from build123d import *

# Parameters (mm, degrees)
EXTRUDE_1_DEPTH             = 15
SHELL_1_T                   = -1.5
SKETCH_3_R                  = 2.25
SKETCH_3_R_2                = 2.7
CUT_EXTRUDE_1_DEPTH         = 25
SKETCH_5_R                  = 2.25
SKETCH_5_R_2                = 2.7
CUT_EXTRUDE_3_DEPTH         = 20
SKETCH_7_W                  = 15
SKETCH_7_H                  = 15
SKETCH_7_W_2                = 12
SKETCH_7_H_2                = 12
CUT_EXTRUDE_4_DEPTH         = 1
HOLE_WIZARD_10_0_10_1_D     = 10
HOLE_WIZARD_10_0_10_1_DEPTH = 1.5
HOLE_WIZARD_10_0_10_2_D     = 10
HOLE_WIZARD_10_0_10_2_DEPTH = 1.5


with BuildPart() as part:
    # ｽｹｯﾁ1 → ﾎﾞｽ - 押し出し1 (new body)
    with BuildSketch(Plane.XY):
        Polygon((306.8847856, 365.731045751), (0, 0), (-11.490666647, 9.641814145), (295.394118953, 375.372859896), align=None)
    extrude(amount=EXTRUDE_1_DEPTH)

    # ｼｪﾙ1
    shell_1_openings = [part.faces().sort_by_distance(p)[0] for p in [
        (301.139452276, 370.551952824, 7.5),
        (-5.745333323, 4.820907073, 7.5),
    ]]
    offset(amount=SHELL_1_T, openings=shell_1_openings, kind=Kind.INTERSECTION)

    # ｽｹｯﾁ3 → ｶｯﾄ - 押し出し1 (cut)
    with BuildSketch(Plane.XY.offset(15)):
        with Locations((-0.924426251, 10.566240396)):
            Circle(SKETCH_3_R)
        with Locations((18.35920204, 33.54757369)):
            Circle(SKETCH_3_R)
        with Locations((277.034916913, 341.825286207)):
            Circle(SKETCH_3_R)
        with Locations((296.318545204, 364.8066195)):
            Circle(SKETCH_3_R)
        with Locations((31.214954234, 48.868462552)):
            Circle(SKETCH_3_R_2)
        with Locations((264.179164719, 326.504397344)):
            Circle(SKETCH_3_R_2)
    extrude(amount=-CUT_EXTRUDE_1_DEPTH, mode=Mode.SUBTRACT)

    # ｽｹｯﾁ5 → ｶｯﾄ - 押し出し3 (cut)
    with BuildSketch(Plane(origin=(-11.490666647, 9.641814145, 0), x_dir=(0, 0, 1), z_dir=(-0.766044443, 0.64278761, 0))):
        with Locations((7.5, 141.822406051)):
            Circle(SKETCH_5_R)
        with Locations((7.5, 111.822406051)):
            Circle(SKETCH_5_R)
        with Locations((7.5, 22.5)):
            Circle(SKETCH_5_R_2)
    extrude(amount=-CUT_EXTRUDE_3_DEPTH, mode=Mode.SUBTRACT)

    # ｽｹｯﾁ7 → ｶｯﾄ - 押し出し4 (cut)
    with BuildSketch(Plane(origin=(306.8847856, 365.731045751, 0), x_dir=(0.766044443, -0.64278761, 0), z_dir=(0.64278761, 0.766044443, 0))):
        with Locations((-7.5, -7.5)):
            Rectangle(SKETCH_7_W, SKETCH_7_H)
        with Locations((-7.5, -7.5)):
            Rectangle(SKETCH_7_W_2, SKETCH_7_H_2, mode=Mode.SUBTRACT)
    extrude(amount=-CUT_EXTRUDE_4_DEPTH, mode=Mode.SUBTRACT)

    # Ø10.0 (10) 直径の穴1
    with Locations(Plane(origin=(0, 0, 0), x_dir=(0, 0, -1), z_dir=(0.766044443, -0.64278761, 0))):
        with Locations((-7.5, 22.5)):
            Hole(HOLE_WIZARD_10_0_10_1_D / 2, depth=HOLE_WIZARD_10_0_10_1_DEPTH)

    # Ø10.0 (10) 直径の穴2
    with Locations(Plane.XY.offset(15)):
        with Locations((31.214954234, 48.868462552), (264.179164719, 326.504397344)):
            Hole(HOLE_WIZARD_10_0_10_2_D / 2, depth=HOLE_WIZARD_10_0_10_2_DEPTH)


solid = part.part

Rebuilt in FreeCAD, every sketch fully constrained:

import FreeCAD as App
import Part
import Sketcher
Q = App.Units.Quantity


def faces_at(feature, points):
    """Names of the faces that lie closest to the given points."""
    faces = feature.Shape.Faces
    near = lambda p: min(range(len(faces)), key=lambda i: faces[i].distToShape(Part.Vertex(*p))[0])
    return sorted({f"Face{near(p) + 1}" for p in points})

doc = App.newDocument("Part")
params = doc.addObject("Spreadsheet::Sheet", "Params")
for row, (alias, value) in enumerate([
    ("sketch1_length", "15 mm"),
    ("pad1_length", "15 mm"),
    ("thickness_wall", "1.5 mm"),
    ("sketch2_diameter", "4.5 mm"),
    ("sketch2_diameter2", "5.4 mm"),
    ("pocket1_length", "25 mm"),
    ("sketch3_diameter", "4.5 mm"),
    ("sketch3_diameter2", "5.4 mm"),
    ("pocket2_length", "20 mm"),
    ("sketch4_width", "15 mm"),
    ("sketch4_width2", "12 mm"),
    ("pocket3_length", "1 mm"),
    ("sketch5_diameter", "10 mm"),
    ("hole_diameter", "10 mm"),
    ("hole_depth", "1.5 mm"),
    ("sketch6_diameter", "10 mm"),
    ("hole2_diameter", "10 mm"),
    ("hole2_depth", "1.5 mm"),
], start=1):
    params.set(f"A{row}", alias)
    params.set(f"B{row}", "=" + value)
    params.setAlias(f"B{row}", alias)

body = doc.addObject("PartDesign::Body", "Body")

sketch1 = body.newObject("Sketcher::SketchObject", "Sketch")
sketch1.AttachmentSupport = (doc.getObject("XY_Plane"), [""])
sketch1.MapMode = "FlatFace"
sketch1.addGeometry(Part.LineSegment(App.Vector(0, 0, 0), App.Vector(307, 366, 0)), False)
sketch1.addGeometry(Part.LineSegment(App.Vector(307, 366, 0), App.Vector(295, 375, 0)), False)
sketch1.addGeometry(Part.LineSegment(App.Vector(295, 375, 0), App.Vector(-11, 10, 0)), False)
sketch1.addGeometry(Part.LineSegment(App.Vector(-11, 10, 0), App.Vector(0, 0, 0)), False)
sketch1.addConstraint(Sketcher.Constraint("Coincident", 0, 2, 1, 1))
sketch1.addConstraint(Sketcher.Constraint("Coincident", 1, 2, 2, 1))
sketch1.addConstraint(Sketcher.Constraint("Coincident", 2, 2, 3, 1))
sketch1.addConstraint(Sketcher.Constraint("Coincident", 3, 2, 0, 1))
sketch1.addConstraint(Sketcher.Constraint("Coincident", 3, 2, -1, 1))
sketch1.addConstraint(Sketcher.Constraint("Perpendicular", 0, 1))
sketch1.addConstraint(Sketcher.Constraint("Perpendicular", 1, 2))
sketch1.addConstraint(Sketcher.Constraint("Perpendicular", 2, 3))
sketch1.addConstraint(Sketcher.Constraint("Angle", 0, Q("50 deg")))
sketch1.addConstraint(Sketcher.Constraint("Distance", 1, Q("15 mm")))
sketch1.addConstraint(Sketcher.Constraint("DistanceX", -1, 1, 1, 2, Q("295.394119 mm")))
sketch1.setExpression("Constraints[9]", "Params.sketch1_length")
pad1 = body.newObject("PartDesign::Pad", "Pad")
pad1.Profile = sketch1
pad1.setExpression("Length", "Params.pad1_length")
doc.recompute()

thickness = body.newObject("PartDesign::Thickness", "Thickness")
thickness.Base = (pad1, faces_at(pad1, [(301.139, 370.552, 7.5), (-5.745, 4.821, 7.5)]))
thickness.setExpression("Value", "Params.thickness_wall")
thickness.Reversed = True
thickness.Join = "Intersection"

sketch2 = body.newObject("Sketcher::SketchObject", "Sketch001")
sketch2.AttachmentSupport = (doc.getObject("XY_Plane"), [""])
sketch2.MapMode = "FlatFace"
sketch2.AttachmentOffset = App.Placement(App.Vector(0, 0, 15), App.Rotation())
sketch2.addGeometry(Part.Circle(App.Vector(-0.9, 10.6, 0), App.Vector(0, 0, 1), 2.2), False)
sketch2.addGeometry(Part.Circle(App.Vector(18.4, 33.5, 0), App.Vector(0, 0, 1), 2.2), False)
sketch2.addGeometry(Part.Circle(App.Vector(277, 341.8, 0), App.Vector(0, 0, 1), 2.2), False)
sketch2.addGeometry(Part.Circle(App.Vector(296.3, 364.8, 0), App.Vector(0, 0, 1), 2.2), False)
sketch2.addGeometry(Part.Circle(App.Vector(31.2, 48.9, 0), App.Vector(0, 0, 1), 2.7), False)
sketch2.addGeometry(Part.Circle(App.Vector(264.2, 326.5, 0), App.Vector(0, 0, 1), 2.7), False)
sketch2.addConstraint(Sketcher.Constraint("Equal", 0, 1))
sketch2.addConstraint(Sketcher.Constraint("Equal", 1, 2))
sketch2.addConstraint(Sketcher.Constraint("Equal", 2, 3))
sketch2.addConstraint(Sketcher.Constraint("Equal", 4, 5))
sketch2.addConstraint(Sketcher.Constraint("Diameter", 0, Q("4.5 mm")))
sketch2.addConstraint(Sketcher.Constraint("Diameter", 4, Q("5.4 mm")))
sketch2.addConstraint(Sketcher.Constraint("DistanceY", -1, 1, 0, 3, Q("10.56624 mm")))
sketch2.addConstraint(Sketcher.Constraint("DistanceY", -1, 1, 3, 3, Q("364.80662 mm")))
sketch2.addConstraint(Sketcher.Constraint("DistanceX", 0, 3, 1, 3, Q("19.283628 mm")))
sketch2.addConstraint(Sketcher.Constraint("DistanceX", 2, 3, 3, 3, Q("19.283628 mm")))
sketch2.addConstraint(Sketcher.Constraint("DistanceX", 0, 3, 3, 3, Q("297.242971 mm")))
sketch2.addConstraint(Sketcher.Constraint("DistanceY", 1, 3, 4, 3, Q("15.320889 mm")))
sketch2.addConstraint(Sketcher.Constraint("DistanceX", 0, 3, 4, 3, Q("32.13938 mm")))
sketch2.addConstraint(Sketcher.Constraint("DistanceY", 5, 3, 2, 3, Q("15.320889 mm")))
sketch2.addConstraint(Sketcher.Constraint("DistanceX", 5, 3, 3, 3, Q("32.13938 mm")))
sketch2.addConstraint(Sketcher.Constraint("DistanceX", 0, 3, -1, 1, Q("0.924426 mm")))
sketch2.addConstraint(Sketcher.Constraint("DistanceY", -1, 1, 1, 3, Q("33.547574 mm")))
sketch2.addConstraint(Sketcher.Constraint("DistanceY", -1, 1, 2, 3, Q("341.825286 mm")))
sketch2.setExpression("Constraints[4]", "Params.sketch2_diameter")
sketch2.setExpression("Constraints[5]", "Params.sketch2_diameter2")
pocket1 = body.newObject("PartDesign::Pocket", "Pocket")
pocket1.Profile = sketch2
pocket1.setExpression("Length", "Params.pocket1_length")

sketch3 = body.newObject("Sketcher::SketchObject", "Sketch002")
sketch3.Placement = App.Placement(App.Vector(-11.490667, 9.641814, 0), App.Rotation(App.Vector(0, 0, 1), App.Vector(0.64278761, 0.766044443, 0), App.Vector(-0.766044443, 0.64278761, 0), "ZXY"))
sketch3.addGeometry(Part.Circle(App.Vector(7.5, 141.8, 0), App.Vector(0, 0, 1), 2.2), False)
sketch3.addGeometry(Part.Circle(App.Vector(7.5, 111.8, 0), App.Vector(0, 0, 1), 2.2), False)
sketch3.addGeometry(Part.Circle(App.Vector(7.5, 22.5, 0), App.Vector(0, 0, 1), 2.7), False)
sketch3.addConstraint(Sketcher.Constraint("Equal", 0, 1))
sketch3.addConstraint(Sketcher.Constraint("Vertical", 0, 3, 1, 3))
sketch3.addConstraint(Sketcher.Constraint("Vertical", 1, 3, 2, 3))
sketch3.addConstraint(Sketcher.Constraint("Diameter", 0, Q("4.5 mm")))
sketch3.addConstraint(Sketcher.Constraint("Diameter", 2, Q("5.4 mm")))
sketch3.addConstraint(Sketcher.Constraint("DistanceY", 1, 3, 0, 3, Q("30 mm")))
sketch3.addConstraint(Sketcher.Constraint("DistanceX", -1, 1, 0, 3, Q("7.5 mm")))
sketch3.addConstraint(Sketcher.Constraint("DistanceY", -1, 1, 2, 3, Q("22.5 mm")))
sketch3.addConstraint(Sketcher.Constraint("DistanceY", -1, 1, 0, 3, Q("141.822406 mm")))
sketch3.setExpression("Constraints[3]", "Params.sketch3_diameter")
sketch3.setExpression("Constraints[4]", "Params.sketch3_diameter2")
pocket2 = body.newObject("PartDesign::Pocket", "Pocket001")
pocket2.Profile = sketch3
pocket2.setExpression("Length", "Params.pocket2_length")

sketch4 = body.newObject("Sketcher::SketchObject", "Sketch003")
sketch4.Placement = App.Placement(App.Vector(306.884786, 365.731046, 0), App.Rotation(App.Vector(0.766044443, -0.64278761, 0), App.Vector(0, 0, -1), App.Vector(0.64278761, 0.766044443, 0), "ZXY"))
sketch4.addGeometry(Part.LineSegment(App.Vector(-15, 0, 0), App.Vector(-15, -15, 0)), False)
sketch4.addGeometry(Part.LineSegment(App.Vector(-15, -15, 0), App.Vector(0, -15, 0)), False)
sketch4.addGeometry(Part.LineSegment(App.Vector(0, -15, 0), App.Vector(0, 0, 0)), False)
sketch4.addGeometry(Part.LineSegment(App.Vector(0, 0, 0), App.Vector(-15, 0, 0)), False)
sketch4.addGeometry(Part.LineSegment(App.Vector(-2, -14, 0), App.Vector(-14, -14, 0)), False)
sketch4.addGeometry(Part.LineSegment(App.Vector(-14, -14, 0), App.Vector(-14, -2, 0)), False)
sketch4.addGeometry(Part.LineSegment(App.Vector(-14, -2, 0), App.Vector(-2, -2, 0)), False)
sketch4.addGeometry(Part.LineSegment(App.Vector(-2, -2, 0), App.Vector(-2, -14, 0)), False)
sketch4.addConstraint(Sketcher.Constraint("Coincident", 0, 2, 1, 1))
sketch4.addConstraint(Sketcher.Constraint("Coincident", 1, 2, 2, 1))
sketch4.addConstraint(Sketcher.Constraint("Coincident", 2, 2, 3, 1))
sketch4.addConstraint(Sketcher.Constraint("Coincident", 3, 2, 0, 1))
sketch4.addConstraint(Sketcher.Constraint("Coincident", 4, 2, 5, 1))
sketch4.addConstraint(Sketcher.Constraint("Coincident", 5, 2, 6, 1))
sketch4.addConstraint(Sketcher.Constraint("Coincident", 6, 2, 7, 1))
sketch4.addConstraint(Sketcher.Constraint("Coincident", 7, 2, 4, 1))
sketch4.addConstraint(Sketcher.Constraint("Vertical", 0))
sketch4.addConstraint(Sketcher.Constraint("Horizontal", 1))
sketch4.addConstraint(Sketcher.Constraint("Vertical", 2))
sketch4.addConstraint(Sketcher.Constraint("Horizontal", 3))
sketch4.addConstraint(Sketcher.Constraint("Horizontal", 4))
sketch4.addConstraint(Sketcher.Constraint("Vertical", 5))
sketch4.addConstraint(Sketcher.Constraint("Horizontal", 6))
sketch4.addConstraint(Sketcher.Constraint("Vertical", 7))
sketch4.addConstraint(Sketcher.Constraint("Coincident", 2, 2, -1, 1))
sketch4.addConstraint(Sketcher.Constraint("Equal", 3, 0))
sketch4.addConstraint(Sketcher.Constraint("Equal", 6, 5))
sketch4.addConstraint(Sketcher.Constraint("DistanceX", 1, 1, 1, 2, Q("15 mm")))
sketch4.addConstraint(Sketcher.Constraint("DistanceX", 4, 2, 4, 1, Q("12 mm")))
sketch4.addConstraint(Sketcher.Constraint("DistanceX", 4, 2, -1, 1, Q("13.5 mm")))
sketch4.addConstraint(Sketcher.Constraint("DistanceY", 4, 2, -1, 1, Q("13.5 mm")))
sketch4.setExpression("Constraints[19]", "Params.sketch4_width")
sketch4.setExpression("Constraints[20]", "Params.sketch4_width2")
pocket3 = body.newObject("PartDesign::Pocket", "Pocket002")
pocket3.Profile = sketch4
pocket3.setExpression("Length", "Params.pocket3_length")

sketch5 = body.newObject("Sketcher::SketchObject", "Sketch004")
sketch5.Placement = App.Placement(App.Vector(0, 0, 0), App.Rotation(App.Vector(0, 0, -1), App.Vector(0.64278761, 0.766044443, 0), App.Vector(0.766044443, -0.64278761, 0), "ZXY"))
sketch5.addGeometry(Part.Circle(App.Vector(-8, 23, 0), App.Vector(0, 0, 1), 5), False)
sketch5.addConstraint(Sketcher.Constraint("Diameter", 0, Q("10 mm")))
sketch5.addConstraint(Sketcher.Constraint("DistanceX", 0, 3, -1, 1, Q("7.5 mm")))
sketch5.addConstraint(Sketcher.Constraint("DistanceY", -1, 1, 0, 3, Q("22.5 mm")))
sketch5.setExpression("Constraints[0]", "Params.sketch5_diameter")
doc.recompute()
hole = body.newObject("PartDesign::Hole", "Hole")
hole.Profile = sketch5
hole.ThreadType = "None"
hole.setExpression("Diameter", "Params.hole_diameter")
hole.DepthType = "Dimension"
hole.setExpression("Depth", "Params.hole_depth")
hole.DrillPoint = "Flat"

sketch6 = body.newObject("Sketcher::SketchObject", "Sketch005")
sketch6.AttachmentSupport = (doc.getObject("XY_Plane"), [""])
sketch6.MapMode = "FlatFace"
sketch6.AttachmentOffset = App.Placement(App.Vector(0, 0, 15), App.Rotation())
sketch6.addGeometry(Part.Circle(App.Vector(31, 49, 0), App.Vector(0, 0, 1), 5), False)
sketch6.addGeometry(Part.Circle(App.Vector(264, 327, 0), App.Vector(0, 0, 1), 5), False)
sketch6.addConstraint(Sketcher.Constraint("Equal", 0, 1))
sketch6.addConstraint(Sketcher.Constraint("Diameter", 0, Q("10 mm")))
sketch6.addConstraint(Sketcher.Constraint("DistanceX", 0, 3, 1, 3, Q("232.96421 mm")))
sketch6.addConstraint(Sketcher.Constraint("DistanceX", -1, 1, 0, 3, Q("31.214954 mm")))
sketch6.addConstraint(Sketcher.Constraint("DistanceY", -1, 1, 0, 3, Q("48.868463 mm")))
sketch6.addConstraint(Sketcher.Constraint("DistanceY", -1, 1, 1, 3, Q("326.504397 mm")))
sketch6.setExpression("Constraints[1]", "Params.sketch6_diameter")
doc.recompute()
hole2 = body.newObject("PartDesign::Hole", "Hole001")
hole2.Profile = sketch6
hole2.ThreadType = "None"
hole2.setExpression("Diameter", "Params.hole2_diameter")
hole2.DepthType = "Dimension"
hole2.setExpression("Depth", "Params.hole2_depth")
hole2.DrillPoint = "Flat"

doc.recompute()
